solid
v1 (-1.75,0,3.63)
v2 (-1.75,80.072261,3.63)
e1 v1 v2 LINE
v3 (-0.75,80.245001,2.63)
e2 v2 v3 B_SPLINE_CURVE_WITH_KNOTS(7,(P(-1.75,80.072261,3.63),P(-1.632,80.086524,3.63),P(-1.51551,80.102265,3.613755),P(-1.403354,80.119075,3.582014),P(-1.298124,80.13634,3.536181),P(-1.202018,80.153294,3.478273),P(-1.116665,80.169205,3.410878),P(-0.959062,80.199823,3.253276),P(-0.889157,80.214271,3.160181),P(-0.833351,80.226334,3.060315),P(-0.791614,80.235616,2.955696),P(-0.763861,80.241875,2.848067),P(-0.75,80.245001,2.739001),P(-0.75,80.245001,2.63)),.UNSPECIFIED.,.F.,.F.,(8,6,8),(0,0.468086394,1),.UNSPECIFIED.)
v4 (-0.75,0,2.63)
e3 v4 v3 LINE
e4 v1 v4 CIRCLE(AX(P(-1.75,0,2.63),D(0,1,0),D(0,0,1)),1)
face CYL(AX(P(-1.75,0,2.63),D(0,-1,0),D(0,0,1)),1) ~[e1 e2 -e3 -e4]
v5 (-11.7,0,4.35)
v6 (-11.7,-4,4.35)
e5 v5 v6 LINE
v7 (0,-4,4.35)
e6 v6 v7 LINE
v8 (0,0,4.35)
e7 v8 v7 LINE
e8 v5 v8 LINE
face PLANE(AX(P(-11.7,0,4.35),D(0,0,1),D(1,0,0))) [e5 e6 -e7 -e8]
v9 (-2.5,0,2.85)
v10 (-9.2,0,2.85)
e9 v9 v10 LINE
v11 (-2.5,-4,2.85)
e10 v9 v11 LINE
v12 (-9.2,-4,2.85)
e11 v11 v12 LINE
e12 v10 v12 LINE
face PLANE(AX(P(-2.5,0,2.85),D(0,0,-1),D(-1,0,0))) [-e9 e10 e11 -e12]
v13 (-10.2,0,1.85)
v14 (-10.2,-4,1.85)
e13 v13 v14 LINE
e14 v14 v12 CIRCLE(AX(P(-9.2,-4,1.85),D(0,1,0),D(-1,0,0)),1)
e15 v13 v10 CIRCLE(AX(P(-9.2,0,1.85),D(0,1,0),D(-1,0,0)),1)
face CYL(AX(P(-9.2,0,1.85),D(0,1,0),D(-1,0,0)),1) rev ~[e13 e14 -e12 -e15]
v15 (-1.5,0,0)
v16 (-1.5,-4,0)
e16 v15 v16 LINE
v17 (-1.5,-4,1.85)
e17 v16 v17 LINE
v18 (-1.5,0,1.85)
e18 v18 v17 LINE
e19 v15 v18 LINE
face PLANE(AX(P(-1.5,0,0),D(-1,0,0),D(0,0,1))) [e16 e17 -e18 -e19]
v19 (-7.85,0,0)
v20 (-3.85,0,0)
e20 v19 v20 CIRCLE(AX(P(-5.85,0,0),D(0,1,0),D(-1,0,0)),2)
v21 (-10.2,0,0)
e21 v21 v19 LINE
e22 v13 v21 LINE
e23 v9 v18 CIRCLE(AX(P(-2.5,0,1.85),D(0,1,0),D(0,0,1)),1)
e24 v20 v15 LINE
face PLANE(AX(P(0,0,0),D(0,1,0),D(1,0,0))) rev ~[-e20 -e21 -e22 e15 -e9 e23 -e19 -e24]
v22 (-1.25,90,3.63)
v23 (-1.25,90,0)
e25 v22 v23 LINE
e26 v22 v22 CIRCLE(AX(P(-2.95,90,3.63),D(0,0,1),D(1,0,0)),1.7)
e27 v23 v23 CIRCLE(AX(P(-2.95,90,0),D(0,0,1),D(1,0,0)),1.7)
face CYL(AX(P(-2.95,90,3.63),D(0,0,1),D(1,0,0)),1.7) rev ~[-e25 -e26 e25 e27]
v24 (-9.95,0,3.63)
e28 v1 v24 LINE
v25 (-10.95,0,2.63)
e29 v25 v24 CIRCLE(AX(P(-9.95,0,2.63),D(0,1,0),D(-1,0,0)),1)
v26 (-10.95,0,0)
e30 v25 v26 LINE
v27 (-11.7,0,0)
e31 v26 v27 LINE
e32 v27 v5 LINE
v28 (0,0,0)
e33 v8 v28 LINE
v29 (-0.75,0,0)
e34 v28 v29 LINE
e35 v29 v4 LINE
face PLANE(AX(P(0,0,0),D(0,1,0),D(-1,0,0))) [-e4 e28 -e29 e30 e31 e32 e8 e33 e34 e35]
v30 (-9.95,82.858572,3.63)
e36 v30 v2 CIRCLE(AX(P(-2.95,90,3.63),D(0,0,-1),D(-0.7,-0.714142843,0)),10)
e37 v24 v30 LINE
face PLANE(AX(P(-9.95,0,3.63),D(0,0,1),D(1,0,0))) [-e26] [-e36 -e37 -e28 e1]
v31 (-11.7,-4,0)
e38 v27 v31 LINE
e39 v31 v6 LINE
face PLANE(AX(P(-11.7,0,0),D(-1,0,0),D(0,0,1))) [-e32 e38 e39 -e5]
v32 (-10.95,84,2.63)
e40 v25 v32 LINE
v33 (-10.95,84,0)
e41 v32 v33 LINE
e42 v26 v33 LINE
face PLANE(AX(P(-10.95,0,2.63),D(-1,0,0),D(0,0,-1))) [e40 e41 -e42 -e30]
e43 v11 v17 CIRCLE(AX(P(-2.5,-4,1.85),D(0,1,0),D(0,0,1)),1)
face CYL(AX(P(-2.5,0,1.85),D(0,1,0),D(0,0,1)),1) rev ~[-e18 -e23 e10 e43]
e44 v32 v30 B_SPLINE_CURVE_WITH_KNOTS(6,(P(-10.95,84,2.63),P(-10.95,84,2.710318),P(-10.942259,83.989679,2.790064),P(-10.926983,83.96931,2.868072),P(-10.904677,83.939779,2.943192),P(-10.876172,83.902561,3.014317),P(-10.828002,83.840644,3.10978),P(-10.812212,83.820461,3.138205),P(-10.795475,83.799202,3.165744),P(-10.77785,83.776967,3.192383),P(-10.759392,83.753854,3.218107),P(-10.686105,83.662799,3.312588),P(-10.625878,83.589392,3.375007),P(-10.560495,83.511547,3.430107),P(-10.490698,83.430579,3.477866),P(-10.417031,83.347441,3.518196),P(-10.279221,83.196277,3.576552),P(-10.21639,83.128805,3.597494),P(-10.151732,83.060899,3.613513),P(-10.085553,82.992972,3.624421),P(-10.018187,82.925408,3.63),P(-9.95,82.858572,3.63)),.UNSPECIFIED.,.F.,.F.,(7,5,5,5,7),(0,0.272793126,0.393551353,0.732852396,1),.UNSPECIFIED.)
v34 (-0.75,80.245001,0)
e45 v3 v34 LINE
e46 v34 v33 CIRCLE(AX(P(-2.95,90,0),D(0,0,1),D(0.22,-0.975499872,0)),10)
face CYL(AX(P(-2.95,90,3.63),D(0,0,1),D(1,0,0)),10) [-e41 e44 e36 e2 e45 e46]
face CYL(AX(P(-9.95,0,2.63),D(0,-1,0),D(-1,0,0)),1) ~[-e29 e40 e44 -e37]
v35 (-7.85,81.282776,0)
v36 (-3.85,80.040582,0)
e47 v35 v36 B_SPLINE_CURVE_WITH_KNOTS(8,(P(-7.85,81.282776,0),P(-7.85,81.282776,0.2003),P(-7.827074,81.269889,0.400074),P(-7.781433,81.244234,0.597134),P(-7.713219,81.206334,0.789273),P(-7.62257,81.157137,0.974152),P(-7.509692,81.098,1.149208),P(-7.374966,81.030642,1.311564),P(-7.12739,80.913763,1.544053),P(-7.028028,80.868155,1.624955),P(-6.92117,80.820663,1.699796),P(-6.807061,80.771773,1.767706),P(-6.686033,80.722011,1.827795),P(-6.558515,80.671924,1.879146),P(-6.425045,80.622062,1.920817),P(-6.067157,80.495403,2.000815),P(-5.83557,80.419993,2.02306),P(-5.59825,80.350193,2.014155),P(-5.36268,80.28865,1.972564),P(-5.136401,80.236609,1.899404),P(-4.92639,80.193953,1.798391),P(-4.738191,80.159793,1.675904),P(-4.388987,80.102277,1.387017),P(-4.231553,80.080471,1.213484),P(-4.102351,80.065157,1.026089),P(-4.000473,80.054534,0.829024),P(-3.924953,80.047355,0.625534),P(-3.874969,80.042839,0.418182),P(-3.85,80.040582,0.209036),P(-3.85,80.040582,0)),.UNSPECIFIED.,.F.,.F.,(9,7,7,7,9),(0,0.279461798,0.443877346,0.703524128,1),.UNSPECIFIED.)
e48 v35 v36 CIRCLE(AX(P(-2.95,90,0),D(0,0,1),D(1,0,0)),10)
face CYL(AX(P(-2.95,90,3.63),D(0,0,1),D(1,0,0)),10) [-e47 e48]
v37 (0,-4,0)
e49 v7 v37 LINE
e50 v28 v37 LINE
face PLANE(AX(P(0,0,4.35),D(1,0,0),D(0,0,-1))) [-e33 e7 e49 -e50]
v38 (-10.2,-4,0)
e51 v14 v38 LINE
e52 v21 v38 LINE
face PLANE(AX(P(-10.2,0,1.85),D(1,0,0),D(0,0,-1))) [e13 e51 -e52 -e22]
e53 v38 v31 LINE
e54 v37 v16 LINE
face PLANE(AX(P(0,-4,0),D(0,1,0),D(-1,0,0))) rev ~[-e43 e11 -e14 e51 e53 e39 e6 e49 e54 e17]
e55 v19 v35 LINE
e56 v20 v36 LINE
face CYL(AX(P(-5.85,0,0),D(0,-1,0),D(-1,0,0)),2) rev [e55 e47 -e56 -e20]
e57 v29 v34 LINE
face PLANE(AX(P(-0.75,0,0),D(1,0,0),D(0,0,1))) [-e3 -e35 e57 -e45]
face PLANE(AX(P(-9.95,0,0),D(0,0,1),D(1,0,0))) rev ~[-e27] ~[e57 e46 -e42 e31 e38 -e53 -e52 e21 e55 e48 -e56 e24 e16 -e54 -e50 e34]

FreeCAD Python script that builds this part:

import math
import FreeCAD as App
import Part
import Sketcher
Q = App.Units.Quantity

doc = App.newDocument("Part")
body = doc.addObject("PartDesign::Body", "Body")

# Sketch on XZ plane
sketch1 = body.newObject("Sketcher::SketchObject", "Sketch")
sketch1.AttachmentSupport = (doc.getObject("XZ_Plane"), [""])
sketch1.MapMode = "FlatFace"
sketch1.addGeometry(Part.LineSegment(App.Vector(-10.2, 1.9, 0), App.Vector(-10.2, 0, 0)), False)
sketch1.addGeometry(Part.LineSegment(App.Vector(-10.2, 0, 0), App.Vector(-11.7, 0, 0)), False)
sketch1.addGeometry(Part.LineSegment(App.Vector(-11.7, 0, 0), App.Vector(-11.7, 4.3, 0)), False)
sketch1.addGeometry(Part.LineSegment(App.Vector(-11.7, 4.3, 0), App.Vector(0, 4.3, 0)), False)
sketch1.addGeometry(Part.LineSegment(App.Vector(0, 4.3, 0), App.Vector(0, 0, 0)), False)
sketch1.addGeometry(Part.LineSegment(App.Vector(0, 0, 0), App.Vector(-1.5, 0, 0)), False)
sketch1.addGeometry(Part.LineSegment(App.Vector(-1.5, 0, 0), App.Vector(-1.5, 1.9, 0)), False)
sketch1.addGeometry(Part.ArcOfCircle(Part.Circle(App.Vector(-2.5, 1.9, 0), App.Vector(0, 0, 1), 1), math.radians(0), math.radians(90)), False)
sketch1.addGeometry(Part.LineSegment(App.Vector(-2.5, 2.9, 0), App.Vector(-9.2, 2.9, 0)), False)
sketch1.addGeometry(Part.ArcOfCircle(Part.Circle(App.Vector(-9.2, 1.9, 0), App.Vector(0, 0, 1), 1), math.radians(90), math.radians(180)), False)
sketch1.addConstraint(Sketcher.Constraint("Coincident", 0, 2, 1, 1))
sketch1.addConstraint(Sketcher.Constraint("Coincident", 1, 2, 2, 1))
sketch1.addConstraint(Sketcher.Constraint("Coincident", 2, 2, 3, 1))
sketch1.addConstraint(Sketcher.Constraint("Coincident", 3, 2, 4, 1))
sketch1.addConstraint(Sketcher.Constraint("Coincident", 4, 2, 5, 1))
sketch1.addConstraint(Sketcher.Constraint("Coincident", 5, 2, 6, 1))
sketch1.addConstraint(Sketcher.Constraint("Tangent", 6, 2, 7, 1))
sketch1.addConstraint(Sketcher.Constraint("Tangent", 7, 2, 8, 1))
sketch1.addConstraint(Sketcher.Constraint("Tangent", 8, 2, 9, 1))
sketch1.addConstraint(Sketcher.Constraint("Tangent", 9, 2, 0, 1))
sketch1.addConstraint(Sketcher.Constraint("Vertical", 0))
sketch1.addConstraint(Sketcher.Constraint("Horizontal", 1))
sketch1.addConstraint(Sketcher.Constraint("Vertical", 2))
sketch1.addConstraint(Sketcher.Constraint("Horizontal", 3))
sketch1.addConstraint(Sketcher.Constraint("Vertical", 4))
sketch1.addConstraint(Sketcher.Constraint("Horizontal", 5))
sketch1.addConstraint(Sketcher.Constraint("Vertical", 6))
sketch1.addConstraint(Sketcher.Constraint("Horizontal", 8))
sketch1.addConstraint(Sketcher.Constraint("Coincident", 4, 2, -1, 1))
sketch1.addConstraint(Sketcher.Constraint("Equal", 7, 9))
sketch1.addConstraint(Sketcher.Constraint("PointOnObject", 0, 2, -1))
sketch1.addConstraint(Sketcher.Constraint("Equal", 1, 5))
sketch1.addConstraint(Sketcher.Constraint("Radius", 7, Q("1 mm")))
sketch1.addConstraint(Sketcher.Constraint("DistanceX", 1, 2, 1, 1, Q("1.5 mm")))
sketch1.addConstraint(Sketcher.Constraint("DistanceX", 3, 1, 3, 2, Q("11.7 mm")))
sketch1.addConstraint(Sketcher.Constraint("DistanceY", 0, 2, 0, 1, Q("1.85 mm")))
sketch1.addConstraint(Sketcher.Constraint("DistanceY", 2, 1, 2, 2, Q("4.35 mm")))
pad1 = body.newObject("PartDesign::Pad", "Pad")
pad1.Profile = sketch1
pad1.Length = 4

# Sketch on XZ plane
sketch2 = body.newObject("Sketcher::SketchObject", "Sketch001")
sketch2.AttachmentSupport = (doc.getObject("XZ_Plane"), [""])
sketch2.MapMode = "FlatFace"
sketch2.addGeometry(Part.LineSegment(App.Vector(-0.8, 2.6, 0), App.Vector(-0.8, 0, 0)), False)
sketch2.addGeometry(Part.LineSegment(App.Vector(-0.8, 0, 0), App.Vector(-3.9, 0, 0)), False)
sketch2.addGeometry(Part.ArcOfCircle(Part.Circle(App.Vector(-5.8, 0, 0), App.Vector(0, 0, 1), 2), math.radians(0), math.radians(180)), False)
sketch2.addGeometry(Part.LineSegment(App.Vector(-7.8, 0, 0), App.Vector(-10.9, 0, 0)), False)
sketch2.addGeometry(Part.LineSegment(App.Vector(-10.9, 0, 0), App.Vector(-10.9, 2.6, 0)), False)
sketch2.addGeometry(Part.ArcOfCircle(Part.Circle(App.Vector(-9.9, 2.6, 0), App.Vector(0, 0, 1), 1), math.radians(90), math.radians(180)), False)
sketch2.addGeometry(Part.LineSegment(App.Vector(-9.9, 3.6, 0), App.Vector(-1.8, 3.6, 0)), False)
sketch2.addGeometry(Part.ArcOfCircle(Part.Circle(App.Vector(-1.8, 2.6, 0), App.Vector(0, 0, 1), 1), math.radians(0), math.radians(90)), False)
sketch2.addConstraint(Sketcher.Constraint("Coincident", 0, 2, 1, 1))
sketch2.addConstraint(Sketcher.Constraint("Coincident", 1, 2, 2, 1))
sketch2.addConstraint(Sketcher.Constraint("Coincident", 2, 2, 3, 1))
sketch2.addConstraint(Sketcher.Constraint("Coincident", 3, 2, 4, 1))
sketch2.addConstraint(Sketcher.Constraint("Tangent", 4, 2, 5, 2))
sketch2.addConstraint(Sketcher.Constraint("Tangent", 5, 1, 6, 1))
sketch2.addConstraint(Sketcher.Constraint("Tangent", 6, 2, 7, 2))
sketch2.addConstraint(Sketcher.Constraint("Tangent", 7, 1, 0, 1))
sketch2.addConstraint(Sketcher.Constraint("Vertical", 0))
sketch2.addConstraint(Sketcher.Constraint("Horizontal", 1))
sketch2.addConstraint(Sketcher.Constraint("Horizontal", 3))
sketch2.addConstraint(Sketcher.Constraint("Vertical", 4))
sketch2.addConstraint(Sketcher.Constraint("Horizontal", 6))
sketch2.addConstraint(Sketcher.Constraint("Equal", 5, 7))
sketch2.addConstraint(Sketcher.Constraint("PointOnObject", 2, 3, -1))
sketch2.addConstraint(Sketcher.Constraint("PointOnObject", 0, 2, -1))
sketch2.addConstraint(Sketcher.Constraint("PointOnObject", 2, 2, -1))
sketch2.addConstraint(Sketcher.Constraint("Equal", 1, 3))
sketch2.addConstraint(Sketcher.Constraint("Radius", 2, Q("2 mm")))
sketch2.addConstraint(Sketcher.Constraint("Radius", 5, Q("1 mm")))
sketch2.addConstraint(Sketcher.Constraint("DistanceX", 1, 2, 1, 1, Q("3.1 mm")))
sketch2.addConstraint(Sketcher.Constraint("DistanceY", 0, 2, 0, 1, Q("2.63 mm")))
sketch2.addConstraint(Sketcher.Constraint("DistanceX", 2, 3, -1, 1, Q("5.85 mm")))
pad2 = body.newObject("PartDesign::Pad", "Pad001")
pad2.Profile = sketch2
pad2.Length = 85
pad2.Reversed = True

# Sketch on XY plane
sketch3 = body.newObject("Sketcher::SketchObject", "Sketch002")
sketch3.AttachmentSupport = (doc.getObject("XY_Plane"), [""])
sketch3.MapMode = "FlatFace"
sketch3.AttachmentOffset = App.Placement(App.Vector(0, 0, 3.63), App.Rotation())
sketch3.addGeometry(Part.Circle(App.Vector(-3, 90, 0), App.Vector(0, 0, 1), 10), False)
sketch3.addConstraint(Sketcher.Constraint("Diameter", 0, Q("20 mm")))
sketch3.addConstraint(Sketcher.Constraint("DistanceY", -1, 1, 0, 3, Q("90 mm")))
sketch3.addConstraint(Sketcher.Constraint("DistanceX", 0, 3, -1, 1, Q("2.95 mm")))
pad3 = body.newObject("PartDesign::Pad", "Pad002")
pad3.Profile = sketch3
pad3.Length = 3.63
pad3.Reversed = True

# Sketch on XY plane
sketch4 = body.newObject("Sketcher::SketchObject", "Sketch003")
sketch4.AttachmentSupport = (doc.getObject("XY_Plane"), [""])
sketch4.MapMode = "FlatFace"
sketch4.AttachmentOffset = App.Placement(App.Vector(0, 0, 3.63), App.Rotation())
sketch4.addGeometry(Part.Circle(App.Vector(-3, 90, 0), App.Vector(0, 0, 1), 1.7), False)
sketch4.addConstraint(Sketcher.Constraint("Diameter", 0, Q("3.4 mm")))
sketch4.addConstraint(Sketcher.Constraint("DistanceY", -1, 1, 0, 3, Q("90 mm")))
sketch4.addConstraint(Sketcher.Constraint("DistanceX", 0, 3, -1, 1, Q("2.95 mm")))
pocket1 = body.newObject("PartDesign::Pocket", "Pocket")
pocket1.Profile = sketch4
pocket1.Length = 120

doc.recompute()
